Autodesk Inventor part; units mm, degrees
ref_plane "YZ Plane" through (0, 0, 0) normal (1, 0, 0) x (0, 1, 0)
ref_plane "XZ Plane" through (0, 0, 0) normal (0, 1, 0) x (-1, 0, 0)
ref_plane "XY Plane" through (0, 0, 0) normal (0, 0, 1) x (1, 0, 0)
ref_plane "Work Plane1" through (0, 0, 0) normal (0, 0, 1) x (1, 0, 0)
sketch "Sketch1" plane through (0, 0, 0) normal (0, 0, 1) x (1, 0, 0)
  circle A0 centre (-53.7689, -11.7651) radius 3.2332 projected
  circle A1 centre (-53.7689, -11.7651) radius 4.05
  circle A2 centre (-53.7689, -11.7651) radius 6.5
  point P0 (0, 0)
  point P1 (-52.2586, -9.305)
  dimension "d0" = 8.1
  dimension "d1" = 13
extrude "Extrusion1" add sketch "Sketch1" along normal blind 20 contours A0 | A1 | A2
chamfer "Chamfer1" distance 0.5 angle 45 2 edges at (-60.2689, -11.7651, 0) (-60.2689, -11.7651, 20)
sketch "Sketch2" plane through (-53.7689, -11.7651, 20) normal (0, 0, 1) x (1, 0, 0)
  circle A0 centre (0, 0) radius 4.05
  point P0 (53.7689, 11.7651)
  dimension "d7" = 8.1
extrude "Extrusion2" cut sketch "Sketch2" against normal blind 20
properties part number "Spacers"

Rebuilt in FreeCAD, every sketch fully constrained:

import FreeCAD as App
import Part
import Sketcher

V = App.Vector


def edges_at(feature, points):
    """Names of the edges that pass closest to the given points."""
    edges = feature.Shape.Edges
    near = lambda p: min(range(len(edges)), key=lambda i: edges[i].distToShape(Part.Vertex(*p))[0])
    return sorted({f"Edge{near(p) + 1}" for p in points})

doc = App.newDocument("Part")
body = doc.addObject("PartDesign::Body", "Body")

sketch1 = body.newObject("Sketcher::SketchObject", "Sketch")
sketch1.AttachmentSupport = (doc.getObject("XY_Plane"), [""])
sketch1.MapMode = "FlatFace"
sketch1.addGeometry(Part.Circle(V(-54, -12, 0), V(0, 0, 1), 6), False)
sketch1.addConstraint([
    Sketcher.Constraint("Diameter", 0, 13.0),
    Sketcher.Constraint("DistanceX", 0, 3, -1, 1, 53.769),
    Sketcher.Constraint("DistanceY", 0, 3, -1, 1, 11.765),
])
pad1 = body.newObject("PartDesign::Pad", "Pad")
pad1.Profile = sketch1
pad1.Length = 20
doc.recompute()

chamfer = body.newObject("PartDesign::Chamfer", "Chamfer")
chamfer.Base = (pad1, edges_at(pad1, [(-60.269, -11.765, 0), (-60.269, -11.765, 20)]))
chamfer.Size = 0.5

sketch2 = body.newObject("Sketcher::SketchObject", "Sketch001")
sketch2.AttachmentSupport = (doc.getObject("XY_Plane"), [""])
sketch2.MapMode = "FlatFace"
sketch2.AttachmentOffset = App.Placement(V(0, 0, 20), App.Rotation())
sketch2.addGeometry(Part.Circle(V(-53.8, -11.8, 0), V(0, 0, 1), 4), False)
sketch2.addConstraint([
    Sketcher.Constraint("Diameter", 0, 8.1),
    Sketcher.Constraint("DistanceX", 0, 3, -1, 1, 53.769),
    Sketcher.Constraint("DistanceY", 0, 3, -1, 1, 11.765),
])
pocket1 = body.newObject("PartDesign::Pocket", "Pocket")
pocket1.Profile = sketch2
pocket1.Length = 20

doc.recompute()
